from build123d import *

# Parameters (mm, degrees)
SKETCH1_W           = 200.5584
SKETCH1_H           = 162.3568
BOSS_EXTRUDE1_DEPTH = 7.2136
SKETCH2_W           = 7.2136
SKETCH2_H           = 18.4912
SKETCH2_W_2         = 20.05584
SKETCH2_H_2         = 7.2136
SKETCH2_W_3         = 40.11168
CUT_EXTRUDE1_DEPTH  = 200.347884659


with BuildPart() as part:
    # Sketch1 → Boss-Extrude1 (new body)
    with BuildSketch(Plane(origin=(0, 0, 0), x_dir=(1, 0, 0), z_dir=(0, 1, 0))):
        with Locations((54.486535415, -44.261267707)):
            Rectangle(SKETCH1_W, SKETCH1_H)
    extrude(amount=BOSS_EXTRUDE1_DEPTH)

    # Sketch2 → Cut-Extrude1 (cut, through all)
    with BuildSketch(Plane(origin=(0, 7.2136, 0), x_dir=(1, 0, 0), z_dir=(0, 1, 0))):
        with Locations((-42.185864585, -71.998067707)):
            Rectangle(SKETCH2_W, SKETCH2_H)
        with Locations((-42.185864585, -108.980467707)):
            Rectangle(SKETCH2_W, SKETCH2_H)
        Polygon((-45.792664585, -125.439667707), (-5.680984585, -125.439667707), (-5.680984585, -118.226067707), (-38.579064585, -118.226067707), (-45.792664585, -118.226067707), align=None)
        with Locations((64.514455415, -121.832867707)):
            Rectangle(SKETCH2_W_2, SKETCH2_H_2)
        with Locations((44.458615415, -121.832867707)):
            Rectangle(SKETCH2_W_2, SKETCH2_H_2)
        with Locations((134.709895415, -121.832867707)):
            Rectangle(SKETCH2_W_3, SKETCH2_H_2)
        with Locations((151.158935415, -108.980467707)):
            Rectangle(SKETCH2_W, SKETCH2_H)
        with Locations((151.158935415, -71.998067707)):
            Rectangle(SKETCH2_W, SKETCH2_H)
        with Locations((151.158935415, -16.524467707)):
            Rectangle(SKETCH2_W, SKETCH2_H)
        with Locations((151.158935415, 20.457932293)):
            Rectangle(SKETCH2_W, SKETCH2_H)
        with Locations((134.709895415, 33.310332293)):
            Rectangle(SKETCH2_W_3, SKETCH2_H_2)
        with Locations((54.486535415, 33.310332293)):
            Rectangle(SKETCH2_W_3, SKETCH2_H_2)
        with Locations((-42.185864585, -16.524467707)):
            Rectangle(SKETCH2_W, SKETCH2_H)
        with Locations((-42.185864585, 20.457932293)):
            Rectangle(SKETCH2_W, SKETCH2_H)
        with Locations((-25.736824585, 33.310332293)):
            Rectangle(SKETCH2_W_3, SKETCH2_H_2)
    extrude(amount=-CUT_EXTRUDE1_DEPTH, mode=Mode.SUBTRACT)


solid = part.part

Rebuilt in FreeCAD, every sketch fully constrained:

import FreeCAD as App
import Part
import Sketcher
from FreeCAD import Vector
Q = App.Units.Quantity

doc = App.newDocument("Part")
body = doc.addObject("PartDesign::Body", "Body")

# Sketch on XZ plane
sketch1 = body.newObject("Sketcher::SketchObject", "Sketch")
sketch1.AttachmentSupport = (doc.getObject("XZ_Plane"), [""])
sketch1.MapMode = "FlatFace"
sketch1.addGeometry(Part.LineSegment(Vector(-46, -37, 0), Vector(-46, 125, 0)), False)
sketch1.addGeometry(Part.LineSegment(Vector(-46, 125, 0), Vector(155, 125, 0)), False)
sketch1.addGeometry(Part.LineSegment(Vector(155, 125, 0), Vector(155, -37, 0)), False)
sketch1.addGeometry(Part.LineSegment(Vector(155, -37, 0), Vector(-46, -37, 0)), False)
sketch1.addConstraint(Sketcher.Constraint("Coincident", 0, 2, 1, 1))
sketch1.addConstraint(Sketcher.Constraint("Coincident", 1, 2, 2, 1))
sketch1.addConstraint(Sketcher.Constraint("Coincident", 2, 2, 3, 1))
sketch1.addConstraint(Sketcher.Constraint("Coincident", 3, 2, 0, 1))
sketch1.addConstraint(Sketcher.Constraint("Vertical", 0))
sketch1.addConstraint(Sketcher.Constraint("Horizontal", 1))
sketch1.addConstraint(Sketcher.Constraint("Vertical", 2))
sketch1.addConstraint(Sketcher.Constraint("Horizontal", 3))
sketch1.addConstraint(Sketcher.Constraint("DistanceX", 1, 1, 1, 2, Q("7.896 in")))
sketch1.addConstraint(Sketcher.Constraint("DistanceY", 0, 1, 0, 2, Q("6.392 in")))
sketch1.addConstraint(Sketcher.Constraint("DistanceX", 0, 2, -1, 1, Q("45.792665 mm")))
sketch1.addConstraint(Sketcher.Constraint("DistanceY", -1, 1, 0, 2, Q("125.439668 mm")))
pad1 = body.newObject("PartDesign::Pad", "Pad")
pad1.Profile = sketch1
pad1.Length = Q("0.284 in")
pad1.Reversed = True

# Sketch on XZ plane
sketch2 = body.newObject("Sketcher::SketchObject", "Sketch001")
sketch2.AttachmentSupport = (doc.getObject("XZ_Plane"), [""])
sketch2.MapMode = "FlatFace"
sketch2.AttachmentOffset = App.Placement(Vector(0, 0, -0.284 * 25.4), App.Rotation())
sketch2.addGeometry(Part.LineSegment(Vector(-46, 63, 0), Vector(-46, 81, 0)), False)
sketch2.addGeometry(Part.LineSegment(Vector(-46, 81, 0), Vector(-39, 81, 0)), False)
sketch2.addGeometry(Part.LineSegment(Vector(-39, 81, 0), Vector(-39, 63, 0)), False)
sketch2.addGeometry(Part.LineSegment(Vector(-39, 63, 0), Vector(-46, 63, 0)), False)
sketch2.addGeometry(Part.LineSegment(Vector(-46, 100, 0), Vector(-46, 125, 0)), False)
sketch2.addGeometry(Part.LineSegment(Vector(-46, 125, 0), Vector(-6, 125, 0)), False)
sketch2.addGeometry(Part.LineSegment(Vector(-6, 125, 0), Vector(-6, 118, 0)), False)
sketch2.addGeometry(Part.LineSegment(Vector(-6, 118, 0), Vector(-39, 118, 0)), False)
sketch2.addGeometry(Part.LineSegment(Vector(-39, 118, 0), Vector(-39, 100, 0)), False)
sketch2.addGeometry(Part.LineSegment(Vector(-39, 100, 0), Vector(-46, 100, 0)), False)
sketch2.addGeometry(Part.LineSegment(Vector(75, 125, 0), Vector(75, 118, 0)), False)
sketch2.addGeometry(Part.LineSegment(Vector(75, 118, 0), Vector(34, 118, 0)), False)
sketch2.addGeometry(Part.LineSegment(Vector(34, 118, 0), Vector(34, 125, 0)), False)
sketch2.addGeometry(Part.LineSegment(Vector(34, 125, 0), Vector(75, 125, 0)), False)
sketch2.addGeometry(Part.LineSegment(Vector(115, 118, 0), Vector(115, 125, 0)), False)
sketch2.addGeometry(Part.LineSegment(Vector(115, 125, 0), Vector(155, 125, 0)), False)
sketch2.addGeometry(Part.LineSegment(Vector(155, 125, 0), Vector(155, 100, 0)), False)
sketch2.addGeometry(Part.LineSegment(Vector(155, 100, 0), Vector(148, 100, 0)), False)
sketch2.addGeometry(Part.LineSegment(Vector(148, 100, 0), Vector(148, 118, 0)), False)
sketch2.addGeometry(Part.LineSegment(Vector(148, 118, 0), Vector(115, 118, 0)), False)
sketch2.addGeometry(Part.LineSegment(Vector(148, 63, 0), Vector(148, 81, 0)), False)
sketch2.addGeometry(Part.LineSegment(Vector(148, 81, 0), Vector(155, 81, 0)), False)
sketch2.addGeometry(Part.LineSegment(Vector(155, 81, 0), Vector(155, 63, 0)), False)
sketch2.addGeometry(Part.LineSegment(Vector(155, 63, 0), Vector(148, 63, 0)), False)
sketch2.addGeometry(Part.LineSegment(Vector(148, 7, 0), Vector(148, 26, 0)), False)
sketch2.addGeometry(Part.LineSegment(Vector(148, 26, 0), Vector(155, 26, 0)), False)
sketch2.addGeometry(Part.LineSegment(Vector(155, 26, 0), Vector(155, 7, 0)), False)
sketch2.addGeometry(Part.LineSegment(Vector(155, 7, 0), Vector(148, 7, 0)), False)
sketch2.addGeometry(Part.LineSegment(Vector(148, -30, 0), Vector(148, -11, 0)), False)
sketch2.addGeometry(Part.LineSegment(Vector(148, -11, 0), Vector(155, -11, 0)), False)
sketch2.addGeometry(Part.LineSegment(Vector(155, -11, 0), Vector(155, -37, 0)), False)
sketch2.addGeometry(Part.LineSegment(Vector(155, -37, 0), Vector(115, -37, 0)), False)
sketch2.addGeometry(Part.LineSegment(Vector(115, -37, 0), Vector(115, -30, 0)), False)
sketch2.addGeometry(Part.LineSegment(Vector(115, -30, 0), Vector(148, -30, 0)), False)
sketch2.addGeometry(Part.LineSegment(Vector(34, -37, 0), Vector(34, -30, 0)), False)
sketch2.addGeometry(Part.LineSegment(Vector(34, -30, 0), Vector(75, -30, 0)), False)
sketch2.addGeometry(Part.LineSegment(Vector(75, -30, 0), Vector(75, -37, 0)), False)
sketch2.addGeometry(Part.LineSegment(Vector(75, -37, 0), Vector(34, -37, 0)), False)
sketch2.addGeometry(Part.LineSegment(Vector(-46, 7, 0), Vector(-46, 26, 0)), False)
sketch2.addGeometry(Part.LineSegment(Vector(-46, 26, 0), Vector(-39, 26, 0)), False)
sketch2.addGeometry(Part.LineSegment(Vector(-39, 26, 0), Vector(-39, 7, 0)), False)
sketch2.addGeometry(Part.LineSegment(Vector(-39, 7, 0), Vector(-46, 7, 0)), False)
sketch2.addGeometry(Part.LineSegment(Vector(-46, -11, 0), Vector(-39, -11, 0)), False)
sketch2.addGeometry(Part.LineSegment(Vector(-39, -11, 0), Vector(-39, -30, 0)), False)
sketch2.addGeometry(Part.LineSegment(Vector(-39, -30, 0), Vector(-6, -30, 0)), False)
sketch2.addGeometry(Part.LineSegment(Vector(-6, -30, 0), Vector(-6, -37, 0)), False)
sketch2.addGeometry(Part.LineSegment(Vector(-6, -37, 0), Vector(-46, -37, 0)), False)
sketch2.addGeometry(Part.LineSegment(Vector(-46, -37, 0), Vector(-46, -11, 0)), False)
sketch2.addConstraint(Sketcher.Constraint("Coincident", 0, 2, 1, 1))
sketch2.addConstraint(Sketcher.Constraint("Coincident", 1, 2, 2, 1))
sketch2.addConstraint(Sketcher.Constraint("Coincident", 2, 2, 3, 1))
sketch2.addConstraint(Sketcher.Constraint("Coincident", 3, 2, 0, 1))
sketch2.addConstraint(Sketcher.Constraint("Coincident", 4, 2, 5, 1))
sketch2.addConstraint(Sketcher.Constraint("Coincident", 5, 2, 6, 1))
sketch2.addConstraint(Sketcher.Constraint("Coincident", 6, 2, 7, 1))
sketch2.addConstraint(Sketcher.Constraint("Coincident", 7, 2, 8, 1))
sketch2.addConstraint(Sketcher.Constraint("Coincident", 8, 2, 9, 1))
sketch2.addConstraint(Sketcher.Constraint("Coincident", 9, 2, 4, 1))
sketch2.addConstraint(Sketcher.Constraint("Coincident", 10, 2, 11, 1))
sketch2.addConstraint(Sketcher.Constraint("Coincident", 11, 2, 12, 1))
sketch2.addConstraint(Sketcher.Constraint("Coincident", 12, 2, 13, 1))
sketch2.addConstraint(Sketcher.Constraint("Coincident", 13, 2, 10, 1))
sketch2.addConstraint(Sketcher.Constraint("Coincident", 14, 2, 15, 1))
sketch2.addConstraint(Sketcher.Constraint("Coincident", 15, 2, 16, 1))
sketch2.addConstraint(Sketcher.Constraint("Coincident", 16, 2, 17, 1))
sketch2.addConstraint(Sketcher.Constraint("Coincident", 17, 2, 18, 1))
sketch2.addConstraint(Sketcher.Constraint("Coincident", 18, 2, 19, 1))
sketch2.addConstraint(Sketcher.Constraint("Coincident", 19, 2, 14, 1))
sketch2.addConstraint(Sketcher.Constraint("Coincident", 20, 2, 21, 1))
sketch2.addConstraint(Sketcher.Constraint("Coincident", 21, 2, 22, 1))
sketch2.addConstraint(Sketcher.Constraint("Coincident", 22, 2, 23, 1))
sketch2.addConstraint(Sketcher.Constraint("Coincident", 23, 2, 20, 1))
sketch2.addConstraint(Sketcher.Constraint("Coincident", 24, 2, 25, 1))
sketch2.addConstraint(Sketcher.Constraint("Coincident", 25, 2, 26, 1))
sketch2.addConstraint(Sketcher.Constraint("Coincident", 26, 2, 27, 1))
sketch2.addConstraint(Sketcher.Constraint("Coincident", 27, 2, 24, 1))
sketch2.addConstraint(Sketcher.Constraint("Coincident", 28, 2, 29, 1))
sketch2.addConstraint(Sketcher.Constraint("Coincident", 29, 2, 30, 1))
sketch2.addConstraint(Sketcher.Constraint("Coincident", 30, 2, 31, 1))
sketch2.addConstraint(Sketcher.Constraint("Coincident", 31, 2, 32, 1))
sketch2.addConstraint(Sketcher.Constraint("Coincident", 32, 2, 33, 1))
sketch2.addConstraint(Sketcher.Constraint("Coincident", 33, 2, 28, 1))
sketch2.addConstraint(Sketcher.Constraint("Coincident", 34, 2, 35, 1))
sketch2.addConstraint(Sketcher.Constraint("Coincident", 35, 2, 36, 1))
sketch2.addConstraint(Sketcher.Constraint("Coincident", 36, 2, 37, 1))
sketch2.addConstraint(Sketcher.Constraint("Coincident", 37, 2, 34, 1))
sketch2.addConstraint(Sketcher.Constraint("Coincident", 38, 2, 39, 1))
sketch2.addConstraint(Sketcher.Constraint("Coincident", 39, 2, 40, 1))
sketch2.addConstraint(Sketcher.Constraint("Coincident", 40, 2, 41, 1))
sketch2.addConstraint(Sketcher.Constraint("Coincident", 41, 2, 38, 1))
sketch2.addConstraint(Sketcher.Constraint("Coincident", 42, 2, 43, 1))
sketch2.addConstraint(Sketcher.Constraint("Coincident", 43, 2, 44, 1))
sketch2.addConstraint(Sketcher.Constraint("Coincident", 44, 2, 45, 1))
sketch2.addConstraint(Sketcher.Constraint("Coincident", 45, 2, 46, 1))
sketch2.addConstraint(Sketcher.Constraint("Coincident", 46, 2, 47, 1))
sketch2.addConstraint(Sketcher.Constraint("Coincident", 47, 2, 42, 1))
sketch2.addConstraint(Sketcher.Constraint("Vertical", 0))
sketch2.addConstraint(Sketcher.Constraint("Horizontal", 1))
sketch2.addConstraint(Sketcher.Constraint("Vertical", 2))
sketch2.addConstraint(Sketcher.Constraint("Horizontal", 3))
sketch2.addConstraint(Sketcher.Constraint("Vertical", 4))
sketch2.addConstraint(Sketcher.Constraint("Horizontal", 5))
sketch2.addConstraint(Sketcher.Constraint("Vertical", 6))
sketch2.addConstraint(Sketcher.Constraint("Horizontal", 7))
sketch2.addConstraint(Sketcher.Constraint("Vertical", 8))
sketch2.addConstraint(Sketcher.Constraint("Horizontal", 9))
sketch2.addConstraint(Sketcher.Constraint("Vertical", 10))
sketch2.addConstraint(Sketcher.Constraint("Horizontal", 11))
sketch2.addConstraint(Sketcher.Constraint("Vertical", 12))
sketch2.addConstraint(Sketcher.Constraint("Horizontal", 13))
sketch2.addConstraint(Sketcher.Constraint("Vertical", 14))
sketch2.addConstraint(Sketcher.Constraint("Horizontal", 15))
sketch2.addConstraint(Sketcher.Constraint("Vertical", 16))
sketch2.addConstraint(Sketcher.Constraint("Horizontal", 17))
sketch2.addConstraint(Sketcher.Constraint("Vertical", 18))
sketch2.addConstraint(Sketcher.Constraint("Horizontal", 19))
sketch2.addConstraint(Sketcher.Constraint("Vertical", 20))
sketch2.addConstraint(Sketcher.Constraint("Horizontal", 21))
sketch2.addConstraint(Sketcher.Constraint("Vertical", 22))
sketch2.addConstraint(Sketcher.Constraint("Horizontal", 23))
sketch2.addConstraint(Sketcher.Constraint("Vertical", 24))
sketch2.addConstraint(Sketcher.Constraint("Horizontal", 25))
sketch2.addConstraint(Sketcher.Constraint("Vertical", 26))
sketch2.addConstraint(Sketcher.Constraint("Horizontal", 27))
sketch2.addConstraint(Sketcher.Constraint("Vertical", 28))
sketch2.addConstraint(Sketcher.Constraint("Horizontal", 29))
sketch2.addConstraint(Sketcher.Constraint("Vertical", 30))
sketch2.addConstraint(Sketcher.Constraint("Horizontal", 31))
sketch2.addConstraint(Sketcher.Constraint("Vertical", 32))
sketch2.addConstraint(Sketcher.Constraint("Horizontal", 33))
sketch2.addConstraint(Sketcher.Constraint("Vertical", 34))
sketch2.addConstraint(Sketcher.Constraint("Horizontal", 35))
sketch2.addConstraint(Sketcher.Constraint("Vertical", 36))
sketch2.addConstraint(Sketcher.Constraint("Horizontal", 37))
sketch2.addConstraint(Sketcher.Constraint("Vertical", 38))
sketch2.addConstraint(Sketcher.Constraint("Horizontal", 39))
sketch2.addConstraint(Sketcher.Constraint("Vertical", 40))
sketch2.addConstraint(Sketcher.Constraint("Horizontal", 41))
sketch2.addConstraint(Sketcher.Constraint("Horizontal", 42))
sketch2.addConstraint(Sketcher.Constraint("Vertical", 43))
sketch2.addConstraint(Sketcher.Constraint("Horizontal", 44))
sketch2.addConstraint(Sketcher.Constraint("Vertical", 45))
sketch2.addConstraint(Sketcher.Constraint("Horizontal", 46))
sketch2.addConstraint(Sketcher.Constraint("Vertical", 47))
sketch2.addConstraint(Sketcher.Constraint("Horizontal", 7, 2, 10, 2))
sketch2.addConstraint(Sketcher.Constraint("Horizontal", 5, 2, 12, 2))
sketch2.addConstraint(Sketcher.Constraint("Horizontal", 13, 2, 14, 2))
sketch2.addConstraint(Sketcher.Constraint("Horizontal", 9, 2, 16, 2))
sketch2.addConstraint(Sketcher.Constraint("Horizontal", 11, 2, 18, 2))
sketch2.addConstraint(Sketcher.Constraint("Horizontal", 1, 2, 20, 2))
sketch2.addConstraint(Sketcher.Constraint("Horizontal", 3, 2, 22, 2))
sketch2.addConstraint(Sketcher.Constraint("Horizontal", 33, 2, 34, 2))
sketch2.addConstraint(Sketcher.Constraint("Horizontal", 31, 2, 36, 2))
sketch2.addConstraint(Sketcher.Constraint("Horizontal", 25, 2, 38, 2))
sketch2.addConstraint(Sketcher.Constraint("Horizontal", 27, 2, 40, 2))
sketch2.addConstraint(Sketcher.Constraint("Horizontal", 29, 2, 42, 2))
sketch2.addConstraint(Sketcher.Constraint("Horizontal", 35, 2, 43, 2))
sketch2.addConstraint(Sketcher.Constraint("Horizontal", 37, 2, 45, 2))
sketch2.addConstraint(Sketcher.Constraint("Vertical", 3, 2, 4, 2))
sketch2.addConstraint(Sketcher.Constraint("Vertical", 2, 2, 7, 2))
sketch2.addConstraint(Sketcher.Constraint("Vertical", 18, 2, 20, 2))
sketch2.addConstraint(Sketcher.Constraint("Vertical", 16, 2, 21, 2))
sketch2.addConstraint(Sketcher.Constraint("Vertical", 23, 2, 24, 2))
sketch2.addConstraint(Sketcher.Constraint("Vertical", 22, 2, 25, 2))
sketch2.addConstraint(Sketcher.Constraint("Vertical", 27, 2, 28, 2))
sketch2.addConstraint(Sketcher.Constraint("Vertical", 26, 2, 29, 2))
sketch2.addConstraint(Sketcher.Constraint("Vertical", 19, 2, 31, 2))
sketch2.addConstraint(Sketcher.Constraint("Vertical", 12, 2, 34, 2))
sketch2.addConstraint(Sketcher.Constraint("Vertical", 13, 2, 35, 2))
sketch2.addConstraint(Sketcher.Constraint("Vertical", 9, 2, 38, 2))
sketch2.addConstraint(Sketcher.Constraint("Vertical", 8, 2, 39, 2))
sketch2.addConstraint(Sketcher.Constraint("Vertical", 40, 2, 42, 2))
sketch2.addConstraint(Sketcher.Constraint("Vertical", 6, 2, 44, 2))
sketch2.addConstraint(Sketcher.Constraint("Vertical", 41, 2, 46, 2))
sketch2.addConstraint(Sketcher.Constraint("Equal", 5, 11))
sketch2.addConstraint(Sketcher.Constraint("Equal", 13, 15))
sketch2.addConstraint(Sketcher.Constraint("Equal", 9, 17))
sketch2.addConstraint(Sketcher.Constraint("Equal", 42, 6))
sketch2.addConstraint(Sketcher.Constraint("Equal", 2, 8))
sketch2.addConstraint(Sketcher.Constraint("Equal", 22, 24))
sketch2.addConstraint(Sketcher.Constraint("Equal", 26, 28))
sketch2.addConstraint(Sketcher.Constraint("Equal", 16, 30))
sketch2.addConstraint(Sketcher.Constraint("DistanceX", 1, 1, 1, 2, Q("0.284 in")))
sketch2.addConstraint(Sketcher.Constraint("DistanceY", 0, 1, 0, 2, Q("0.728 in")))
sketch2.addConstraint(Sketcher.Constraint("DistanceY", 0, 2, 4, 2, Q("1.74 in")))
sketch2.addConstraint(Sketcher.Constraint("DistanceY", 30, 2, 26, 2, Q("1.74 in")))
sketch2.addConstraint(Sketcher.Constraint("DistanceY", 34, 2, 2, 2, Q("3.64 in")))
sketch2.addConstraint(Sketcher.Constraint("DistanceX", 5, 1, 5, 2, Q("1.5792 in")))
sketch2.addConstraint(Sketcher.Constraint("DistanceX", 6, 2, 10, 2, Q("3.1584 in")))
sketch2.addConstraint(Sketcher.Constraint("DistanceX", 13, 2, 14, 2, Q("1.5792 in")))
sketch2.addConstraint(Sketcher.Constraint("DistanceX", 0, 2, -1, 1, Q("45.792665 mm")))
sketch2.addConstraint(Sketcher.Constraint("DistanceY", -1, 1, 0, 2, Q("81.243668 mm")))
pocket1 = body.newObject("PartDesign::Pocket", "Pocket")
pocket1.Profile = sketch2
pocket1.Type = "ThroughAll"
pocket1.Reversed = True

doc.recompute()
